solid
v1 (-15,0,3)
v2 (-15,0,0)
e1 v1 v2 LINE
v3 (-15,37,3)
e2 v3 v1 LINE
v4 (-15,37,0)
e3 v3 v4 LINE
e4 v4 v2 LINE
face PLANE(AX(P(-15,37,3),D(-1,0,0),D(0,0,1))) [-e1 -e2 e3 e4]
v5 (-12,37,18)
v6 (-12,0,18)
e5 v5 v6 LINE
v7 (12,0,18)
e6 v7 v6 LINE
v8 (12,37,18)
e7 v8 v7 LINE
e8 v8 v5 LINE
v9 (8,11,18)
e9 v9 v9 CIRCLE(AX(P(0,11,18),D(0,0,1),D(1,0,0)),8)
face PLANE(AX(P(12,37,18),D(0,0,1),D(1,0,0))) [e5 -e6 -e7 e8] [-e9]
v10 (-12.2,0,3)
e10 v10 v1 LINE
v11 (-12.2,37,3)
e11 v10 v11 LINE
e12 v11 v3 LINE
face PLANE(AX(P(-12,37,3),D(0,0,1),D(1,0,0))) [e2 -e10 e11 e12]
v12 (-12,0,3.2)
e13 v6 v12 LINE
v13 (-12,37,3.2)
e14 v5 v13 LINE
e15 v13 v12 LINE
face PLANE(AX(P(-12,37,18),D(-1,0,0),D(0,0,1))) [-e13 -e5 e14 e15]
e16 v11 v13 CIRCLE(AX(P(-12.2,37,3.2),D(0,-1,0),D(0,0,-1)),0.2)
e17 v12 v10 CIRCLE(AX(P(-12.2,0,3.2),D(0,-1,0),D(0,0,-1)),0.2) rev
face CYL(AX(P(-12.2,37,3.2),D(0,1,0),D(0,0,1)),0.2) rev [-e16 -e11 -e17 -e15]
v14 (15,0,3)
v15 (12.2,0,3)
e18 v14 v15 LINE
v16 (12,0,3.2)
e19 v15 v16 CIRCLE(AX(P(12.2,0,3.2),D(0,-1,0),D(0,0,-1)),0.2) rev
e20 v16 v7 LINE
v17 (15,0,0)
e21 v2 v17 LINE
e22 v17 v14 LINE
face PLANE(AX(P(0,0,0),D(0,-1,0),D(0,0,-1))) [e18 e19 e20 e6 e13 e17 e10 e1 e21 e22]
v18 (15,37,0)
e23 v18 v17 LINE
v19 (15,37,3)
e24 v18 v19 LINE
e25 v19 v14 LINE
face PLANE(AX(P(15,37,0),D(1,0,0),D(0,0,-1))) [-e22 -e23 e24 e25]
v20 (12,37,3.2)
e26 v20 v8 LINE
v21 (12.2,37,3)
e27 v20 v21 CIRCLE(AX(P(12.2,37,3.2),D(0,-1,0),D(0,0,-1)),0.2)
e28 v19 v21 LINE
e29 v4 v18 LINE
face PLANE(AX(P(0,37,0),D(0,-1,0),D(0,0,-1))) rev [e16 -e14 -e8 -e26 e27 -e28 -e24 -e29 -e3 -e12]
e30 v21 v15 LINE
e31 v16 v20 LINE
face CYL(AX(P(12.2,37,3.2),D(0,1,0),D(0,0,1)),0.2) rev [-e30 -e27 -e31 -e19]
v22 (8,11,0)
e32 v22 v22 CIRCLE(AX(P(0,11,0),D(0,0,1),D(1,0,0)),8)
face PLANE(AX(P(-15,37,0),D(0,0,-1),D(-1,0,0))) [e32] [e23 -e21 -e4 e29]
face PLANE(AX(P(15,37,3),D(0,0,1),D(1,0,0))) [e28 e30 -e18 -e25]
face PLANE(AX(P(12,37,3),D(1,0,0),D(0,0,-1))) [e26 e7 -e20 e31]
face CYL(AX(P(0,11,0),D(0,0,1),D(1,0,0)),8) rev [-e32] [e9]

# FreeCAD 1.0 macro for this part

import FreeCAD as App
import Part
import Sketcher
from FreeCAD import Vector


def edges_at(feature, points):
    """Names of the edges that pass closest to the given points."""
    edges = feature.Shape.Edges
    near = lambda p: min(range(len(edges)), key=lambda i: edges[i].distToShape(Part.Vertex(*p))[0])
    return sorted({f"Edge{near(p) + 1}" for p in points})


def add_polygon(sketch, points):
    """Adds a closed chain of lines whose ends are joined by coincident constraints."""
    first, n = sketch.GeometryCount, len(points)
    for a, b in zip(points, points[1:] + points[:1]):
        sketch.addGeometry(Part.LineSegment(App.Vector(*a, 0), App.Vector(*b, 0)), False)
    for i in range(n):
        sketch.addConstraint(Sketcher.Constraint("Coincident", first + i, 2, first + (i + 1) % n, 1))

doc = App.newDocument("Part")
body = doc.addObject("PartDesign::Body", "Body")

sketch1 = body.newObject("Sketcher::SketchObject", "Sketch")
sketch1.AttachmentSupport = (doc.getObject("XZ_Plane"), [""])
sketch1.MapMode = "FlatFace"
add_polygon(sketch1, [(15, 0), (-15, 0), (-15, 3), (-12, 3), (-12, 18), (12, 18), (12, 3), (15, 3)])
sketch1.addConstraint([
    Sketcher.Constraint("Horizontal", 0),
    Sketcher.Constraint("Vertical", 1),
    Sketcher.Constraint("Horizontal", 2),
    Sketcher.Constraint("Vertical", 3),
    Sketcher.Constraint("Horizontal", 4),
    Sketcher.Constraint("Vertical", 5),
    Sketcher.Constraint("Horizontal", 6),
    Sketcher.Constraint("Vertical", 7),
    Sketcher.Constraint("Symmetric", 0, 2, 7, 2, -1, 1),
    Sketcher.Constraint("Symmetric", 2, 2, 5, 2, -2),
    Sketcher.Constraint("Equal", 6, 1),
    Sketcher.Constraint("DistanceX", 0, 2, 0, 1, 30.0),
    Sketcher.Constraint("DistanceX", 2, 1, 2, 2, 3.0),
    Sketcher.Constraint("DistanceY", 3, 1, 3, 2, 15.0),
])
pad1 = body.newObject("PartDesign::Pad", "Pad")
pad1.Profile = sketch1
pad1.Length = 37
pad1.Reversed = True

sketch2 = body.newObject("Sketcher::SketchObject", "Sketch001")
sketch2.AttachmentSupport = (doc.getObject("XY_Plane"), [""])
sketch2.MapMode = "FlatFace"
sketch2.AttachmentOffset = App.Placement(Vector(0, 0, 18), App.Rotation())
sketch2.addGeometry(Part.Circle(Vector(0, 11, 0), Vector(0, 0, 1), 8), False)
sketch2.addConstraint([
    Sketcher.Constraint("PointOnObject", 0, 3, -2),
    Sketcher.Constraint("Diameter", 0, 16.0),
    Sketcher.Constraint("DistanceY", -1, 1, 0, 3, 11.0),
])
pocket1 = body.newObject("PartDesign::Pocket", "Pocket")
pocket1.Profile = sketch2
pocket1.Type = "ThroughAll"
doc.recompute()

fillet = body.newObject("PartDesign::Fillet", "Fillet")
fillet.Base = (pocket1, edges_at(pocket1, [(12, 18.5, 3), (-12, 18.5, 3)]))
fillet.Radius = 0.2

doc.recompute()
